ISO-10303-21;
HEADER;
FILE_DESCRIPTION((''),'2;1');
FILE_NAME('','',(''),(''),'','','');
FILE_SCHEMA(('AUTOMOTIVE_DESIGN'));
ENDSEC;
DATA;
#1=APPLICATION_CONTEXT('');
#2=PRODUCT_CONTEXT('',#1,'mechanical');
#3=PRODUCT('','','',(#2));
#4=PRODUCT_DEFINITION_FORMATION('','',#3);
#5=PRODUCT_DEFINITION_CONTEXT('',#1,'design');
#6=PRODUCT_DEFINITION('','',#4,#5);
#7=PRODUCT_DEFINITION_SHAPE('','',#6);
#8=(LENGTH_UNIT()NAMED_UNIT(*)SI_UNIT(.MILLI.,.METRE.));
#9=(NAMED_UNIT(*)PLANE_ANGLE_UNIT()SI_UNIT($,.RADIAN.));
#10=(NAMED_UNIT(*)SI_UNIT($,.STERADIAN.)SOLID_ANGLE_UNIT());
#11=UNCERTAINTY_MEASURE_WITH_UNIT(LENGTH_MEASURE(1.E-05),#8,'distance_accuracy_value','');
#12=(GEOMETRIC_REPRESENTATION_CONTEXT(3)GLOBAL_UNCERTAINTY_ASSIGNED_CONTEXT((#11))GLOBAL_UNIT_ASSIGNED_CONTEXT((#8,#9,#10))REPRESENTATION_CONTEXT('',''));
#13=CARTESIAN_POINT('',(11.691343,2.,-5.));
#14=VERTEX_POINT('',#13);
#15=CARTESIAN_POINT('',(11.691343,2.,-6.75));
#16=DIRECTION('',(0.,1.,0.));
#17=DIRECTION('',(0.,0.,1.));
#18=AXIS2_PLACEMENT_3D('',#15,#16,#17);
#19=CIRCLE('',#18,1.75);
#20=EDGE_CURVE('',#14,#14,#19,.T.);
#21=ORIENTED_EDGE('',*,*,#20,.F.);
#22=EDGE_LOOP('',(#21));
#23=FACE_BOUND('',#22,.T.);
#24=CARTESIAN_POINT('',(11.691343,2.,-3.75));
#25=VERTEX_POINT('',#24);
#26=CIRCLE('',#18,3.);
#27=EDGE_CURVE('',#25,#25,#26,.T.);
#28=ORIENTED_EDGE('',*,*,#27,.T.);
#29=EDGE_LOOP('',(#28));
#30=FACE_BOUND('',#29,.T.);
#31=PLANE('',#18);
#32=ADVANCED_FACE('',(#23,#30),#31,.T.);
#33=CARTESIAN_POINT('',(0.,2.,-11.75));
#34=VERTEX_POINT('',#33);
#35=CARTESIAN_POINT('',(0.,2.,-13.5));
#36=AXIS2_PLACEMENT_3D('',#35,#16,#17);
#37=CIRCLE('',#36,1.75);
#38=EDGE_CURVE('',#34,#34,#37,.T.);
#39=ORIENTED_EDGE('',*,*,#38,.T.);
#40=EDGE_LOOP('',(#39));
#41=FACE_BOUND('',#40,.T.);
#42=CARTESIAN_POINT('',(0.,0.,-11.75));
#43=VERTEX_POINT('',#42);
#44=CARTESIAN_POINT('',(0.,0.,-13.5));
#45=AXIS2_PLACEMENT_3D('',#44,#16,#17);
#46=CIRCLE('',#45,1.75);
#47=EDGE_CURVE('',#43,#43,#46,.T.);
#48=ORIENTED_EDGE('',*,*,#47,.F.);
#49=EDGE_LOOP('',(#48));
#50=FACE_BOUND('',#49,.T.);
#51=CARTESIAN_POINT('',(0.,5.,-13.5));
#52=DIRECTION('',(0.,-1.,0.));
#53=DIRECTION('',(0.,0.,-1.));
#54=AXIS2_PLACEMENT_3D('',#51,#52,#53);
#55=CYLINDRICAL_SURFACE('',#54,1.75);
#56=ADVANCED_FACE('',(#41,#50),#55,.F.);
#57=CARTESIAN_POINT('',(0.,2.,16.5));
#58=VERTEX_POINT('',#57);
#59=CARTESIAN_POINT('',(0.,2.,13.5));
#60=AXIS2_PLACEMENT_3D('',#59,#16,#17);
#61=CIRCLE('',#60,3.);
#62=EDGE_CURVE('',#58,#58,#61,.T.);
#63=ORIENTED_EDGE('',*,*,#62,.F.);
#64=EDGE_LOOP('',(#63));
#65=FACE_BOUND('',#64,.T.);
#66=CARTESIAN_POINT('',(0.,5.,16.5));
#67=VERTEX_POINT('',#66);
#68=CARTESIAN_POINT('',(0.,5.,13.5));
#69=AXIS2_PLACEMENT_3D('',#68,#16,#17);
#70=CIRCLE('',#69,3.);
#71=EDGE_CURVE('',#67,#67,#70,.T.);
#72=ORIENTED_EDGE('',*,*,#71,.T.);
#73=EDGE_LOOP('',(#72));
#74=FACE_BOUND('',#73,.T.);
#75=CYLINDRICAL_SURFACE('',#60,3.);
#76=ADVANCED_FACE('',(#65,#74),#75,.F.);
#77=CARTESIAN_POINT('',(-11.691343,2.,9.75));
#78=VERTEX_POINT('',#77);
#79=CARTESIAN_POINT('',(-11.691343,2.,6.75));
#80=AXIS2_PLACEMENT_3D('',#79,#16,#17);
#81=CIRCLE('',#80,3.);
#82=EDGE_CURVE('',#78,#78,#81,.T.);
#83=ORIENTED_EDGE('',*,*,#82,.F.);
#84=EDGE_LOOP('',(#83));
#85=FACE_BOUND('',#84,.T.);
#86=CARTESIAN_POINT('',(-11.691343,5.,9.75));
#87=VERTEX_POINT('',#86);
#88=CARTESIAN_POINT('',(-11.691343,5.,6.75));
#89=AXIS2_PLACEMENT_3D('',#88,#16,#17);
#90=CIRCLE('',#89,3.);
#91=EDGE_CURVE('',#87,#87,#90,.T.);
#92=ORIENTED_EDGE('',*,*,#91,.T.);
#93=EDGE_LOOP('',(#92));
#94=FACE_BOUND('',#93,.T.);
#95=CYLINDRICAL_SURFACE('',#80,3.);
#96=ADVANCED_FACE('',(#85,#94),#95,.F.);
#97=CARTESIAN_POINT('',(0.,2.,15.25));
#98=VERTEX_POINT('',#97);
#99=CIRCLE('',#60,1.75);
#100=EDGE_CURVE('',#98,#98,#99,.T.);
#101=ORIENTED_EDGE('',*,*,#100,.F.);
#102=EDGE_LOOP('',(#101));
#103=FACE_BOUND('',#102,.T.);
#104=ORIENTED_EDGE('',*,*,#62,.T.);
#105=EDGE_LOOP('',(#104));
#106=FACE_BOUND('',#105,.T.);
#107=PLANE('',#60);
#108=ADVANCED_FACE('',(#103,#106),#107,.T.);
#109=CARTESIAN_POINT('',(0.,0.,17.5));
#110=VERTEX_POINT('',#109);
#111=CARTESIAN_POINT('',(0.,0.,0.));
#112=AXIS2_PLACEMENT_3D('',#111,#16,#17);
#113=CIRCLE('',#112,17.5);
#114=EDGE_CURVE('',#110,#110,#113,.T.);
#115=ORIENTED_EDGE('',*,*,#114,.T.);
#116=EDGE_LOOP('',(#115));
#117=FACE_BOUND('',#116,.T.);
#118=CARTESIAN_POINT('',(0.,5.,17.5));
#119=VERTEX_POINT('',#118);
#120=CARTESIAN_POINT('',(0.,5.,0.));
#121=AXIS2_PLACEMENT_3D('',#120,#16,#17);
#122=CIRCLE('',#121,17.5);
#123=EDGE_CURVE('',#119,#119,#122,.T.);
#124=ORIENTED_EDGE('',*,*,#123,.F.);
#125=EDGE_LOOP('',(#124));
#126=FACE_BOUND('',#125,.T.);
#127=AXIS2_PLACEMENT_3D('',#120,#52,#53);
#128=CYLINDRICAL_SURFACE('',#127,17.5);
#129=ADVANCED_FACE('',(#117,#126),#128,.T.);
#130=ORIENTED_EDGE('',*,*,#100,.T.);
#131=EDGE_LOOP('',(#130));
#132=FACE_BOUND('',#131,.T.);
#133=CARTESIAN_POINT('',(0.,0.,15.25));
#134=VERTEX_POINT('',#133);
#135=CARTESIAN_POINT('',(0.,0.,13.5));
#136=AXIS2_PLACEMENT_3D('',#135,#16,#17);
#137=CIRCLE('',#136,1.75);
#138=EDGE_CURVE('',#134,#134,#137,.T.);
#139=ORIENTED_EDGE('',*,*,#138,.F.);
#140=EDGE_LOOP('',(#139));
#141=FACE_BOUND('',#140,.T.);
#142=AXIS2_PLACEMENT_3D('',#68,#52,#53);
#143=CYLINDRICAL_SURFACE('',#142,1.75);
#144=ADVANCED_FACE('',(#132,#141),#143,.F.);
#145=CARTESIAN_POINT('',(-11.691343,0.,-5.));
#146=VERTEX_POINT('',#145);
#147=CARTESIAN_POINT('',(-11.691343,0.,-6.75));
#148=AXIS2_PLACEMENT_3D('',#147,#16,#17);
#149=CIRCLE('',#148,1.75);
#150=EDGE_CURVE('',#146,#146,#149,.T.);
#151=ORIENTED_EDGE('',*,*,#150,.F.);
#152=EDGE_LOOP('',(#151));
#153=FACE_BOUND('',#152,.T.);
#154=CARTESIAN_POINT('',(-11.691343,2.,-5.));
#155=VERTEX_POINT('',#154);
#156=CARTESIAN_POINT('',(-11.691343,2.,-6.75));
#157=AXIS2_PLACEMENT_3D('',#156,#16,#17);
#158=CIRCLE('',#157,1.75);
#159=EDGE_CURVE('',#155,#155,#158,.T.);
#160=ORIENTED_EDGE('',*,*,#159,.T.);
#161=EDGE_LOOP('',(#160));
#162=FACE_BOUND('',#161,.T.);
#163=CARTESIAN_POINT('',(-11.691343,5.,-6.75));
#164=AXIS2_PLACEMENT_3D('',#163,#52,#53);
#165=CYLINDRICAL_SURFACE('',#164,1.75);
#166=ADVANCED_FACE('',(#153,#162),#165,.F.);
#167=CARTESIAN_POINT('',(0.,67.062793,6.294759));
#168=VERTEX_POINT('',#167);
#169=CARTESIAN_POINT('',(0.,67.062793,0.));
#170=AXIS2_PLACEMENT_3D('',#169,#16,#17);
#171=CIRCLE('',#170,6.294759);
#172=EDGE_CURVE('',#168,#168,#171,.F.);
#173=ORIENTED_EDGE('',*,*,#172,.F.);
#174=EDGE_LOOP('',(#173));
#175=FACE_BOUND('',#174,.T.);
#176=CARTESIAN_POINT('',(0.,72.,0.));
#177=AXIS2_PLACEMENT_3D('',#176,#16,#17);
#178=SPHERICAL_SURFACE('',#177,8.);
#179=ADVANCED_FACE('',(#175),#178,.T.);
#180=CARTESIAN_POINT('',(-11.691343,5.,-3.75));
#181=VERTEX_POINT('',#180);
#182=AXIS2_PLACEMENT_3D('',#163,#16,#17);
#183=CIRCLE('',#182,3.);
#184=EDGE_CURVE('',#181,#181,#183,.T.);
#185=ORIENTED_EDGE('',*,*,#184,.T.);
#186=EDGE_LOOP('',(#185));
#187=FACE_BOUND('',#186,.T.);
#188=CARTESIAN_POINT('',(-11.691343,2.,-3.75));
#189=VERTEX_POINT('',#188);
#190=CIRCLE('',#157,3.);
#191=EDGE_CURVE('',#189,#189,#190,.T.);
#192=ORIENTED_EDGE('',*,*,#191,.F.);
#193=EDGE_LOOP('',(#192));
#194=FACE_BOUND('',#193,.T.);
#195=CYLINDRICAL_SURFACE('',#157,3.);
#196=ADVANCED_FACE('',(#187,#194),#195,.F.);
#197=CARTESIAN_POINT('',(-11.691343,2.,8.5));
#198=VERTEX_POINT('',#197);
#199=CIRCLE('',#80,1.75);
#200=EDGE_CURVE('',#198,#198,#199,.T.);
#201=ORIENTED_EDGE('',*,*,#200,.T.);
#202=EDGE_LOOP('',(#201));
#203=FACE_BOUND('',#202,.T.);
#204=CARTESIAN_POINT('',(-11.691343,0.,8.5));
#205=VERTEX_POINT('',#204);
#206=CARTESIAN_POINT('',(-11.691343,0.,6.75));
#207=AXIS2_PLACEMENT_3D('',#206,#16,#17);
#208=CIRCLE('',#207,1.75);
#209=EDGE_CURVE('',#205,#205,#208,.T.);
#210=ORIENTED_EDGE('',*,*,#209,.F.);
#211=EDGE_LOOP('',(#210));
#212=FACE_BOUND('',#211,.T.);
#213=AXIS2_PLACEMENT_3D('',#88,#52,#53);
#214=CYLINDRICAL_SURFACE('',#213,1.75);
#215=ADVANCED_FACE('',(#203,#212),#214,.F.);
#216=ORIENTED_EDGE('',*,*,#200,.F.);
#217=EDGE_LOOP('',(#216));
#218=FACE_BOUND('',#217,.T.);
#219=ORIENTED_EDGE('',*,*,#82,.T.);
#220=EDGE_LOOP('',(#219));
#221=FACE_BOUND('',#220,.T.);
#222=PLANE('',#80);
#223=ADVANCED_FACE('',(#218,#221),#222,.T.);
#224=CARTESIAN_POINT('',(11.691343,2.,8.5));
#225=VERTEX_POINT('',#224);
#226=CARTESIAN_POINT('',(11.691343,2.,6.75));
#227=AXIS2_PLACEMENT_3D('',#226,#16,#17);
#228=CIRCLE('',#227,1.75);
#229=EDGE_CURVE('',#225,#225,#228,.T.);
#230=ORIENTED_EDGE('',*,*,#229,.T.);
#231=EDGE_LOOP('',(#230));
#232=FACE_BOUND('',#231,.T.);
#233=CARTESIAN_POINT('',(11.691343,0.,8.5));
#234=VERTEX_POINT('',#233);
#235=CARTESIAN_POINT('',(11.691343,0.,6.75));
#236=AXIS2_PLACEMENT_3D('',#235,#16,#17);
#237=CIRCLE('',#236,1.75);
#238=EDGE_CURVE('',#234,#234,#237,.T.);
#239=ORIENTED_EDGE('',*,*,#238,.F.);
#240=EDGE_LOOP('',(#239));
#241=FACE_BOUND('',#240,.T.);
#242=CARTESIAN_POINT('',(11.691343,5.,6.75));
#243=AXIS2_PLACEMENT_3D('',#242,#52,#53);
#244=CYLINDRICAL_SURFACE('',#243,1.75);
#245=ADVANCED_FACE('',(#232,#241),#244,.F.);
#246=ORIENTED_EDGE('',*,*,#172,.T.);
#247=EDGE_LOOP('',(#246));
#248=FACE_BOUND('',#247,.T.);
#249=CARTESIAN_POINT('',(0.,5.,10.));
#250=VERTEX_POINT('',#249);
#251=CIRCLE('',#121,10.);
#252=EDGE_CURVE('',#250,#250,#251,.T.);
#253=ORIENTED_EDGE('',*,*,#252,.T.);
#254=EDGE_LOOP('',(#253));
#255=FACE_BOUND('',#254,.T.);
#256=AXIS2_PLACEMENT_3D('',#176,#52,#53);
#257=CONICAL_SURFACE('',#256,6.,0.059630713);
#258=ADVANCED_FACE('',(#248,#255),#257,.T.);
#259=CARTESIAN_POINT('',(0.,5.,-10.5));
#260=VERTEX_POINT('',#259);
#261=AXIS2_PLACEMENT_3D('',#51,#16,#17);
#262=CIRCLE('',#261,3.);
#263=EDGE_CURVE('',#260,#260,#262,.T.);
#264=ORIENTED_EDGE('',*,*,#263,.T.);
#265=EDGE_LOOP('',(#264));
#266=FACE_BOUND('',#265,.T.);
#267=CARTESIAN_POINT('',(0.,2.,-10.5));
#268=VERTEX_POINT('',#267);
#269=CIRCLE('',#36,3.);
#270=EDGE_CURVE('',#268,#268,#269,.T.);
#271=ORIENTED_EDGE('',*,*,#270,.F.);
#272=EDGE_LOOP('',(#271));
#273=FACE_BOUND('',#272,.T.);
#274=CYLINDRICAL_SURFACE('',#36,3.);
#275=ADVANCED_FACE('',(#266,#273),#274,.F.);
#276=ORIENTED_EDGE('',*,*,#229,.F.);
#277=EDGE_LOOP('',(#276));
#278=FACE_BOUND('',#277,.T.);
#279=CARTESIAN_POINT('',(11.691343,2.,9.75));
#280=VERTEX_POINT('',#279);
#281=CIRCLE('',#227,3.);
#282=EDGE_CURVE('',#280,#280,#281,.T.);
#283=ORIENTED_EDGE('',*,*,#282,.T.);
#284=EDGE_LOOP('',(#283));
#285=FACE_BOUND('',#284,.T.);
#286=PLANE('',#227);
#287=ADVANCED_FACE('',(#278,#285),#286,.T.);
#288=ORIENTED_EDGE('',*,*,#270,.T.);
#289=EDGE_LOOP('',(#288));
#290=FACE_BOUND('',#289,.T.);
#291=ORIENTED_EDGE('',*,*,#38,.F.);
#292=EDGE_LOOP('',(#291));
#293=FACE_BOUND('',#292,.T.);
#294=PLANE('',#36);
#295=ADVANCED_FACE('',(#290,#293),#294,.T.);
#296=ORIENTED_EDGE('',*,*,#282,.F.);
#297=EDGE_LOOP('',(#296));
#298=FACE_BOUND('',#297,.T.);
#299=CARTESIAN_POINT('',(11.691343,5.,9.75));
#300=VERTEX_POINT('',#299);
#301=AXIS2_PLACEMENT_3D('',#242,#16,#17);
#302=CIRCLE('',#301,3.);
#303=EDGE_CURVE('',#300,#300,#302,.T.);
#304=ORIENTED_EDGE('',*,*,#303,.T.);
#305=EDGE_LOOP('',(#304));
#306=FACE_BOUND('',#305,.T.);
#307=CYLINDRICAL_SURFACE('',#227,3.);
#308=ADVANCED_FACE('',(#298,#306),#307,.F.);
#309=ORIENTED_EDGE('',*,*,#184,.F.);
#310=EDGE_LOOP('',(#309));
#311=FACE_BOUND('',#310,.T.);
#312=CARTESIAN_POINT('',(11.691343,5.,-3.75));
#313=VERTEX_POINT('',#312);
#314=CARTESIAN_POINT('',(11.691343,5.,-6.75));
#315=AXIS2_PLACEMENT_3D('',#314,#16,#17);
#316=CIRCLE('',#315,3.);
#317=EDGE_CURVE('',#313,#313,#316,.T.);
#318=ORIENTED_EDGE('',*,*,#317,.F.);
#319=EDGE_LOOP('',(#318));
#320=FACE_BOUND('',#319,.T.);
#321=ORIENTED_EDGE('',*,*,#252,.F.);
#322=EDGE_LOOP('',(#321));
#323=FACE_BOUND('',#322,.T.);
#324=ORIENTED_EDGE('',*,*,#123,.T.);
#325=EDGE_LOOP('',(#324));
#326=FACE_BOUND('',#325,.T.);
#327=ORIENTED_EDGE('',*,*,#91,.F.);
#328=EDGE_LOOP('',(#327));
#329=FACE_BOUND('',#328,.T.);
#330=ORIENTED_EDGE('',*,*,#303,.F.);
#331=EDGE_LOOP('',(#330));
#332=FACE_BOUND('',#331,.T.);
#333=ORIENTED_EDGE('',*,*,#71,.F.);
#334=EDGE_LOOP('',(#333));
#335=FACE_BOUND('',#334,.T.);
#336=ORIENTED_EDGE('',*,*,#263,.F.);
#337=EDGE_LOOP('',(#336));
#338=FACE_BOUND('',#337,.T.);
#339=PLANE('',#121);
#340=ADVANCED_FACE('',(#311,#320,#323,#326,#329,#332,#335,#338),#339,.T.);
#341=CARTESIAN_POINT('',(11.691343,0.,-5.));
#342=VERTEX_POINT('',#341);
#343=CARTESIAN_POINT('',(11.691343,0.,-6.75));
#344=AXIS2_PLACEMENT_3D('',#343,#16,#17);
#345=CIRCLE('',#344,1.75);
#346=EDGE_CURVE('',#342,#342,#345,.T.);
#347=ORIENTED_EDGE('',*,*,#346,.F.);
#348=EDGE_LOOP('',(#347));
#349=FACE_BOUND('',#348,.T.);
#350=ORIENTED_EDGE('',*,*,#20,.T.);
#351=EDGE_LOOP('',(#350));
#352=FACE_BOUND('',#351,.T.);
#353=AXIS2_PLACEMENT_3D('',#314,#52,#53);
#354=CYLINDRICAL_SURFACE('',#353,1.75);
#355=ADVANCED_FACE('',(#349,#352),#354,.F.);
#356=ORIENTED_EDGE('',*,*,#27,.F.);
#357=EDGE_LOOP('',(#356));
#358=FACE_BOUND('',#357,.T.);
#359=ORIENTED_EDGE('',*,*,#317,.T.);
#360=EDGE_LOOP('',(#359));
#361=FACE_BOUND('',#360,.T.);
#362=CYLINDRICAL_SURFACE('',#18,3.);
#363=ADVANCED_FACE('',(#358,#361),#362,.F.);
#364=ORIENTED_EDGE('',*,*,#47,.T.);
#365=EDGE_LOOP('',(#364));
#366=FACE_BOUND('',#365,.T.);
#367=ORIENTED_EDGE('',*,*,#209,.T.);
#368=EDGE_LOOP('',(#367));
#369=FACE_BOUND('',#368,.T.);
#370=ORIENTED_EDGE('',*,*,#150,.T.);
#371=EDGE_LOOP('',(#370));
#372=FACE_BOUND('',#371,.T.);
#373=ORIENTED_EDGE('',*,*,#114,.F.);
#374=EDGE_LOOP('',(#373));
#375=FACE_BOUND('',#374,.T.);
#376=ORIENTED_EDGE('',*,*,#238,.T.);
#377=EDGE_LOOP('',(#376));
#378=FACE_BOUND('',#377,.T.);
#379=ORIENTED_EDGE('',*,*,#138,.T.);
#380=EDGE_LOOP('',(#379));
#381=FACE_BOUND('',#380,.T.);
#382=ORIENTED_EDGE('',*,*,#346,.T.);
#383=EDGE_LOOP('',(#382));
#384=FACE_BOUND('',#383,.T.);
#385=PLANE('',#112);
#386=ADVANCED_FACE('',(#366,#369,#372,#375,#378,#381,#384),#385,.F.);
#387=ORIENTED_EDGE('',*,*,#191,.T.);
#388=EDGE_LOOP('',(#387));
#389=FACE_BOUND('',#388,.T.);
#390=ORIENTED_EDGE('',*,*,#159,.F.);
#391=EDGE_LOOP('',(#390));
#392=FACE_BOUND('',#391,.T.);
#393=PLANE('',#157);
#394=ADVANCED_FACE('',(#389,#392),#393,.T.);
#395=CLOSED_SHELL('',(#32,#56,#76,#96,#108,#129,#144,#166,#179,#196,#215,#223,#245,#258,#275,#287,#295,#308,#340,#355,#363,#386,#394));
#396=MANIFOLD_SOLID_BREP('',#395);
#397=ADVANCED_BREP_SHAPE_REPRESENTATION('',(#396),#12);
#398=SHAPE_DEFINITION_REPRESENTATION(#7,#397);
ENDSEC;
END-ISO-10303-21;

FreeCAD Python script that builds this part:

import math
import FreeCAD as App
import Part
import Sketcher

V = App.Vector
Q = App.Units.Quantity

doc = App.newDocument("Part")
body = doc.addObject("PartDesign::Body", "Body")

# Sketch on XZ plane
sketch1 = body.newObject("Sketcher::SketchObject", "Sketch")
sketch1.AttachmentSupport = (doc.getObject("XZ_Plane"), [""])
sketch1.MapMode = "FlatFace"
sketch1.addGeometry(Part.Circle(V(0, 0, 0), V(0, 0, 1), 17.5), False)
sketch1.addGeometry(Part.Circle(V(-11.7, 6.8, 0), V(0, 0, 1), 1.8), False)
sketch1.addGeometry(Part.Circle(V(0, 13.5, 0), V(0, 0, 1), 1.8), False)
sketch1.addGeometry(Part.Circle(V(11.7, 6.8, 0), V(0, 0, 1), 1.8), False)
sketch1.addGeometry(Part.Circle(V(-11.7, -6.8, 0), V(0, 0, 1), 1.8), False)
sketch1.addGeometry(Part.Circle(V(11.7, -6.8, 0), V(0, 0, 1), 1.8), False)
sketch1.addGeometry(Part.Circle(V(0, -13.5, 0), V(0, 0, 1), 1.8), False)
sketch1.addConstraint(Sketcher.Constraint("Coincident", 0, 3, -1, 1))
sketch1.addConstraint(Sketcher.Constraint("Equal", 1, 2))
sketch1.addConstraint(Sketcher.Constraint("Equal", 2, 3))
sketch1.addConstraint(Sketcher.Constraint("Equal", 3, 4))
sketch1.addConstraint(Sketcher.Constraint("Equal", 4, 5))
sketch1.addConstraint(Sketcher.Constraint("Equal", 5, 6))
sketch1.addConstraint(Sketcher.Constraint("Symmetric", 3, 3, 4, 3, -1, 1))
sketch1.addConstraint(Sketcher.Constraint("Symmetric", 1, 3, 5, 3, -1, 1))
sketch1.addConstraint(Sketcher.Constraint("Symmetric", 2, 3, 6, 3, -1, 1))
sketch1.addConstraint(Sketcher.Constraint("Symmetric", 1, 3, 3, 3, -2))
sketch1.addConstraint(Sketcher.Constraint("PointOnObject", 2, 3, -2))
sketch1.addConstraint(Sketcher.Constraint("Diameter", 0, Q("35 mm")))
sketch1.addConstraint(Sketcher.Constraint("Diameter", 1, Q("3.5 mm")))
sketch1.addConstraint(Sketcher.Constraint("DistanceY", -1, 1, 2, 3, Q("13.5 mm")))
sketch1.addConstraint(Sketcher.Constraint("DistanceY", 4, 3, 1, 3, Q("13.5 mm")))
sketch1.addConstraint(Sketcher.Constraint("DistanceX", 1, 3, -1, 1, Q("11.691343 mm")))
pad1 = body.newObject("PartDesign::Pad", "Pad")
pad1.Profile = sketch1
pad1.Length = 5
pad1.Reversed = True

# Sketch on XZ plane
sketch2 = body.newObject("Sketcher::SketchObject", "Sketch001")
sketch2.AttachmentSupport = (doc.getObject("XZ_Plane"), [""])
sketch2.MapMode = "FlatFace"
sketch2.AttachmentOffset = App.Placement(V(0, 0, -5), App.Rotation())
sketch2.addGeometry(Part.Circle(V(0, -13.5, 0), V(0, 0, 1), 3), False)
sketch2.addGeometry(Part.Circle(V(11.7, -6.8, 0), V(0, 0, 1), 3), False)
sketch2.addGeometry(Part.Circle(V(11.7, 6.8, 0), V(0, 0, 1), 3), False)
sketch2.addGeometry(Part.Circle(V(0, 13.5, 0), V(0, 0, 1), 3), False)
sketch2.addGeometry(Part.Circle(V(-11.7, 6.8, 0), V(0, 0, 1), 3), False)
sketch2.addGeometry(Part.Circle(V(-11.7, -6.8, 0), V(0, 0, 1), 3), False)
sketch2.addConstraint(Sketcher.Constraint("Equal", 0, 1))
sketch2.addConstraint(Sketcher.Constraint("Equal", 1, 2))
sketch2.addConstraint(Sketcher.Constraint("Equal", 2, 3))
sketch2.addConstraint(Sketcher.Constraint("Equal", 3, 4))
sketch2.addConstraint(Sketcher.Constraint("Equal", 4, 5))
sketch2.addConstraint(Sketcher.Constraint("Symmetric", 0, 3, 3, 3, -1, 1))
sketch2.addConstraint(Sketcher.Constraint("Symmetric", 1, 3, 4, 3, -1, 1))
sketch2.addConstraint(Sketcher.Constraint("Symmetric", 2, 3, 5, 3, -1, 1))
sketch2.addConstraint(Sketcher.Constraint("Symmetric", 2, 3, 4, 3, -2))
sketch2.addConstraint(Sketcher.Constraint("PointOnObject", 0, 3, -2))
sketch2.addConstraint(Sketcher.Constraint("Diameter", 0, Q("6 mm")))
sketch2.addConstraint(Sketcher.Constraint("DistanceY", 0, 3, 3, 3, Q("27 mm")))
sketch2.addConstraint(Sketcher.Constraint("DistanceY", 1, 3, 2, 3, Q("13.5 mm")))
sketch2.addConstraint(Sketcher.Constraint("DistanceX", -1, 1, 1, 3, Q("11.691343 mm")))
pocket1 = body.newObject("PartDesign::Pocket", "Pocket")
pocket1.Profile = sketch2
pocket1.Length = 3
pocket1.Reversed = True

# Sketch on XZ plane
sketch3 = body.newObject("Sketcher::SketchObject", "Sketch002")
sketch3.AttachmentSupport = (doc.getObject("XZ_Plane"), [""])
sketch3.MapMode = "FlatFace"
sketch3.AttachmentOffset = App.Placement(V(0, 0, -5), App.Rotation())
sketch3.addGeometry(Part.Circle(V(0, 0, 0), V(0, 0, 1), 10), False)
sketch3.addConstraint(Sketcher.Constraint("Coincident", 0, 3, -1, 1))
sketch3.addConstraint(Sketcher.Constraint("Diameter", 0, Q("20 mm")))

# Sketch on XZ plane
sketch4 = body.newObject("Sketcher::SketchObject", "Sketch003")
sketch4.AttachmentSupport = (doc.getObject("XZ_Plane"), [""])
sketch4.MapMode = "FlatFace"
sketch4.AttachmentOffset = App.Placement(V(0, 0, -72), App.Rotation())
sketch4.addGeometry(Part.Circle(V(0, 0, 0), V(0, 0, 1), 6), False)
sketch4.addConstraint(Sketcher.Constraint("Coincident", 0, 3, -1, 1))
sketch4.addConstraint(Sketcher.Constraint("Diameter", 0, Q("12 mm")))

additiveloft = body.newObject("PartDesign::AdditiveLoft", "AdditiveLoft")
additiveloft.Profile = sketch3
additiveloft.Sections = [sketch4]

# Sketch on XZ plane
sketch5 = body.newObject("Sketcher::SketchObject", "Sketch004")
sketch5.AttachmentSupport = (doc.getObject("XZ_Plane"), [""])
sketch5.MapMode = "FlatFace"
sketch5.AttachmentOffset = App.Placement(V(0, 0, -72), App.Rotation())
sketch5.addGeometry(Part.LineSegment(V(-8, 0, 0), V(8, 0, 0)), False)
sketch5.addGeometry(Part.ArcOfCircle(Part.Circle(V(0, 0, 0), V(0, 0, 1), 8), math.radians(180), math.radians(360)), False)
sketch5.addConstraint(Sketcher.Constraint("Coincident", 0, 1, 1, 1))
sketch5.addConstraint(Sketcher.Constraint("Coincident", 1, 2, 0, 2))
sketch5.addConstraint(Sketcher.Constraint("Horizontal", 0))
sketch5.addConstraint(Sketcher.Constraint("Coincident", 1, 3, -1, 1))
sketch5.addConstraint(Sketcher.Constraint("PointOnObject", 0, 1, -1))
sketch5.addConstraint(Sketcher.Constraint("Radius", 1, Q("8 mm")))
revolution = body.newObject("PartDesign::Revolution", "Revolution")
revolution.Profile = sketch5
revolution.ReferenceAxis = (sketch5, ["H_Axis"])
revolution.Angle = 360

doc.recompute()
